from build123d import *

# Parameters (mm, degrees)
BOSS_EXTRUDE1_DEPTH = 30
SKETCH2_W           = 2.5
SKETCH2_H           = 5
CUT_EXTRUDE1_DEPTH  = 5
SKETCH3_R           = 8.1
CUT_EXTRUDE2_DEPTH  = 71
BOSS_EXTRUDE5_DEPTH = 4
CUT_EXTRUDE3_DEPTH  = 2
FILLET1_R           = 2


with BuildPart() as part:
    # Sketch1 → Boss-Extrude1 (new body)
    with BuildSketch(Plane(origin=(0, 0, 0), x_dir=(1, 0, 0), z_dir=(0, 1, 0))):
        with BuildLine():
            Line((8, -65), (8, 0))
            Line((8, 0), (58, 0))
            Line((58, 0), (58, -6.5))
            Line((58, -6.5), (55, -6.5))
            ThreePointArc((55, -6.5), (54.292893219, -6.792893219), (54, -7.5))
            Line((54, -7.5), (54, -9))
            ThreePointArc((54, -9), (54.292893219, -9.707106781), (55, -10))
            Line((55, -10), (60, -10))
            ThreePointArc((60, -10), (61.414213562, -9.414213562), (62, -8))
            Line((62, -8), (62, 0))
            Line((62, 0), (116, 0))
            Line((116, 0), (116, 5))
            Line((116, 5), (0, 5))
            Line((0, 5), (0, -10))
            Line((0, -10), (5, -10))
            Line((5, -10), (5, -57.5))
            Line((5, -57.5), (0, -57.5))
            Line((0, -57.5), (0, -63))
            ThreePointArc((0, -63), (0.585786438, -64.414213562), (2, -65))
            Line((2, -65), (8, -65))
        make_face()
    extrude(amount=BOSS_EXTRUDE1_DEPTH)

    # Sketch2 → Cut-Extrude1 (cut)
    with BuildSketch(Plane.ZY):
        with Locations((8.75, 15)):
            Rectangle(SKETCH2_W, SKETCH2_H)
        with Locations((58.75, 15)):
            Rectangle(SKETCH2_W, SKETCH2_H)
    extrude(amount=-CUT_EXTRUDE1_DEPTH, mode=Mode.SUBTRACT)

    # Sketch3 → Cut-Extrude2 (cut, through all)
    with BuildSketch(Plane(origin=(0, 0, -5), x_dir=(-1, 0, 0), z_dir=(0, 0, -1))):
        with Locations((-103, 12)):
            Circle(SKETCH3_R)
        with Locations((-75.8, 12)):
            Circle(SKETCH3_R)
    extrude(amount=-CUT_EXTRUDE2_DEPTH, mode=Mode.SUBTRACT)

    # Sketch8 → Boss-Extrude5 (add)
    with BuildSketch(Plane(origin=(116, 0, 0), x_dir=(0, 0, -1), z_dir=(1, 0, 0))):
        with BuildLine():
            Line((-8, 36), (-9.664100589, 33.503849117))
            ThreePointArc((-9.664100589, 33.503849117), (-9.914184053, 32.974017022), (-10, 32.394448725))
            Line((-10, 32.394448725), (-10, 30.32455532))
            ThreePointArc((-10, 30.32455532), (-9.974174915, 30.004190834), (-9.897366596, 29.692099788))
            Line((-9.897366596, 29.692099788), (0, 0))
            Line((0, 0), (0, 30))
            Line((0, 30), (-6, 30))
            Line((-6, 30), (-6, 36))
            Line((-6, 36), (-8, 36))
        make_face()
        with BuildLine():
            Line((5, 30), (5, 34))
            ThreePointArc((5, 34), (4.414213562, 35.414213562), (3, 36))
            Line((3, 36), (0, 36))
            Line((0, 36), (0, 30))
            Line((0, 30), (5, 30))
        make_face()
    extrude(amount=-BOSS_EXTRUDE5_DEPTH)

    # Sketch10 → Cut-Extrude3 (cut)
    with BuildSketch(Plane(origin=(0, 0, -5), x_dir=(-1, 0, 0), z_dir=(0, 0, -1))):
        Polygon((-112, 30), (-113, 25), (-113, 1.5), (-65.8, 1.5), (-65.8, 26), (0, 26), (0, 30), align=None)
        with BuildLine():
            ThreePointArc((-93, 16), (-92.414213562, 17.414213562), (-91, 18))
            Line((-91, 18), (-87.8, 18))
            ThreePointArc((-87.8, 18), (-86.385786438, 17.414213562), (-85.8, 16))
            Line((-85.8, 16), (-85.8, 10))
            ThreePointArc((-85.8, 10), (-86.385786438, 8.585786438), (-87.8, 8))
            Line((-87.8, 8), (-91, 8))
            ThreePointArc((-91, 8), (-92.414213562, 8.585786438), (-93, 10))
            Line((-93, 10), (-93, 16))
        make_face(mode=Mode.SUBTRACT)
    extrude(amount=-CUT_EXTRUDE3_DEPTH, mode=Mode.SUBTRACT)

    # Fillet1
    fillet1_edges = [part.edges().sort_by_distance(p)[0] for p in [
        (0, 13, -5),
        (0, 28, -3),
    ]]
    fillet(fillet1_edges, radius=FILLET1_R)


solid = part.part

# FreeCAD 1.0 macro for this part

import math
import FreeCAD as App
import Part
import Sketcher
from FreeCAD import Vector
Q = App.Units.Quantity


def edges_at(feature, points):
    """Names of the edges that pass closest to the given points."""
    edges = feature.Shape.Edges
    near = lambda p: min(range(len(edges)), key=lambda i: edges[i].distToShape(Part.Vertex(*p))[0])
    return sorted({f"Edge{near(p) + 1}" for p in points})


def add_polygon(sketch, points):
    """Adds a closed chain of lines whose ends are joined by coincident constraints."""
    first, n = sketch.GeometryCount, len(points)
    for a, b in zip(points, points[1:] + points[:1]):
        sketch.addGeometry(Part.LineSegment(App.Vector(*a, 0), App.Vector(*b, 0)), False)
    for i in range(n):
        sketch.addConstraint(Sketcher.Constraint("Coincident", first + i, 2, first + (i + 1) % n, 1))

doc = App.newDocument("Part")
params = doc.addObject("Spreadsheet::Sheet", "Params")
for row, (alias, value) in enumerate([
    ("sketch1_radius", "1 mm"),
    ("sketch1_radius2", "2 mm"),
    ("sketch1_width", "50 mm"),
    ("sketch1_width2", "3 mm"),
    ("sketch1_width3", "5 mm"),
    ("pad1_length", "30 mm"),
    ("sketch2_width", "5 mm"),
    ("sketch2_height", "2.5 mm"),
    ("pocket1_length", "5 mm"),
    ("sketch3_diameter", "16.2 mm"),
    ("sketch4_radius", "2 mm"),
    ("sketch4_width", "30 mm"),
    ("sketch4_width2", "6 mm"),
    ("sketch4_height", "2 mm"),
    ("sketch4_height2", "3 mm"),
    ("pad2_length", "4 mm"),
    ("sketch5_radius", "2 mm"),
    ("sketch5_width", "112 mm"),
    ("sketch5_height", "4 mm"),
    ("sketch5_height2", "6 mm"),
    ("sketch5_width2", "47.2 mm"),
    ("pocket3_length", "2 mm"),
    ("fillet_radius", "2 mm"),
], start=1):
    params.set(f"A{row}", alias)
    params.set(f"B{row}", "=" + value)
    params.setAlias(f"B{row}", alias)

body = doc.addObject("PartDesign::Body", "Body")

# Sketch on XZ plane
sketch1 = body.newObject("Sketcher::SketchObject", "Sketch")
sketch1.AttachmentSupport = (doc.getObject("XZ_Plane"), [""])
sketch1.MapMode = "FlatFace"
sketch1.addGeometry(Part.LineSegment(Vector(8, 65, 0), Vector(8, 0, 0)), False)
sketch1.addGeometry(Part.LineSegment(Vector(8, 0, 0), Vector(58, 0, 0)), False)
sketch1.addGeometry(Part.LineSegment(Vector(58, 0, 0), Vector(58, 6.5, 0)), False)
sketch1.addGeometry(Part.LineSegment(Vector(58, 6.5, 0), Vector(55, 6.5, 0)), False)
sketch1.addGeometry(Part.ArcOfCircle(Part.Circle(Vector(55, 7.5, 0), Vector(0, 0, 1), 1), math.radians(-180), math.radians(-90)), False)
sketch1.addGeometry(Part.LineSegment(Vector(54, 7.5, 0), Vector(54, 9, 0)), False)
sketch1.addGeometry(Part.ArcOfCircle(Part.Circle(Vector(55, 9, 0), Vector(0, 0, 1), 1), math.radians(90), math.radians(180)), False)
sketch1.addGeometry(Part.LineSegment(Vector(55, 10, 0), Vector(60, 10, 0)), False)
sketch1.addGeometry(Part.ArcOfCircle(Part.Circle(Vector(60, 8, 0), Vector(0, 0, 1), 2), math.radians(0), math.radians(90)), False)
sketch1.addGeometry(Part.LineSegment(Vector(62, 8, 0), Vector(62, 0, 0)), False)
sketch1.addGeometry(Part.LineSegment(Vector(62, 0, 0), Vector(116, 0, 0)), False)
sketch1.addGeometry(Part.LineSegment(Vector(116, 0, 0), Vector(116, -5, 0)), False)
sketch1.addGeometry(Part.LineSegment(Vector(116, -5, 0), Vector(0, -5, 0)), False)
sketch1.addGeometry(Part.LineSegment(Vector(0, -5, 0), Vector(0, 10, 0)), False)
sketch1.addGeometry(Part.LineSegment(Vector(0, 10, 0), Vector(5, 10, 0)), False)
sketch1.addGeometry(Part.LineSegment(Vector(5, 10, 0), Vector(5, 57.5, 0)), False)
sketch1.addGeometry(Part.LineSegment(Vector(5, 57.5, 0), Vector(0, 57.5, 0)), False)
sketch1.addGeometry(Part.LineSegment(Vector(0, 57.5, 0), Vector(0, 63, 0)), False)
sketch1.addGeometry(Part.ArcOfCircle(Part.Circle(Vector(2, 63, 0), Vector(0, 0, 1), 2), math.radians(90), math.radians(180)), False)
sketch1.addGeometry(Part.LineSegment(Vector(2, 65, 0), Vector(8, 65, 0)), False)
sketch1.addConstraint(Sketcher.Constraint("Coincident", 0, 2, 1, 1))
sketch1.addConstraint(Sketcher.Constraint("Coincident", 1, 2, 2, 1))
sketch1.addConstraint(Sketcher.Constraint("Coincident", 2, 2, 3, 1))
sketch1.addConstraint(Sketcher.Constraint("Tangent", 3, 2, 4, 2))
sketch1.addConstraint(Sketcher.Constraint("Tangent", 4, 1, 5, 1))
sketch1.addConstraint(Sketcher.Constraint("Tangent", 5, 2, 6, 2))
sketch1.addConstraint(Sketcher.Constraint("Tangent", 6, 1, 7, 1))
sketch1.addConstraint(Sketcher.Constraint("Tangent", 7, 2, 8, 2))
sketch1.addConstraint(Sketcher.Constraint("Tangent", 8, 1, 9, 1))
sketch1.addConstraint(Sketcher.Constraint("Coincident", 9, 2, 10, 1))
sketch1.addConstraint(Sketcher.Constraint("Coincident", 10, 2, 11, 1))
sketch1.addConstraint(Sketcher.Constraint("Coincident", 11, 2, 12, 1))
sketch1.addConstraint(Sketcher.Constraint("Coincident", 12, 2, 13, 1))
sketch1.addConstraint(Sketcher.Constraint("Coincident", 13, 2, 14, 1))
sketch1.addConstraint(Sketcher.Constraint("Coincident", 14, 2, 15, 1))
sketch1.addConstraint(Sketcher.Constraint("Coincident", 15, 2, 16, 1))
sketch1.addConstraint(Sketcher.Constraint("Coincident", 16, 2, 17, 1))
sketch1.addConstraint(Sketcher.Constraint("Tangent", 17, 2, 18, 2))
sketch1.addConstraint(Sketcher.Constraint("Tangent", 18, 1, 19, 1))
sketch1.addConstraint(Sketcher.Constraint("Coincident", 19, 2, 0, 1))
sketch1.addConstraint(Sketcher.Constraint("Vertical", 0))
sketch1.addConstraint(Sketcher.Constraint("Horizontal", 1))
sketch1.addConstraint(Sketcher.Constraint("Vertical", 2))
sketch1.addConstraint(Sketcher.Constraint("Horizontal", 3))
sketch1.addConstraint(Sketcher.Constraint("Vertical", 5))
sketch1.addConstraint(Sketcher.Constraint("Horizontal", 7))
sketch1.addConstraint(Sketcher.Constraint("Vertical", 9))
sketch1.addConstraint(Sketcher.Constraint("Horizontal", 10))
sketch1.addConstraint(Sketcher.Constraint("Vertical", 11))
sketch1.addConstraint(Sketcher.Constraint("Horizontal", 12))
sketch1.addConstraint(Sketcher.Constraint("Vertical", 13))
sketch1.addConstraint(Sketcher.Constraint("Horizontal", 14))
sketch1.addConstraint(Sketcher.Constraint("Vertical", 15))
sketch1.addConstraint(Sketcher.Constraint("Horizontal", 16))
sketch1.addConstraint(Sketcher.Constraint("Vertical", 17))
sketch1.addConstraint(Sketcher.Constraint("Horizontal", 19))
sketch1.addConstraint(Sketcher.Constraint("Equal", 4, 6))
sketch1.addConstraint(Sketcher.Constraint("Equal", 8, 18))
sketch1.addConstraint(Sketcher.Constraint("PointOnObject", 0, 2, -1))
sketch1.addConstraint(Sketcher.Constraint("PointOnObject", 9, 2, -1))
sketch1.addConstraint(Sketcher.Constraint("PointOnObject", 12, 2, -2))
sketch1.addConstraint(Sketcher.Constraint("PointOnObject", 16, 2, -2))
sketch1.addConstraint(Sketcher.Constraint("Horizontal", 7, 2, 13, 2))
sketch1.addConstraint(Sketcher.Constraint("Equal", 7, 14))
sketch1.addConstraint(Sketcher.Constraint("Equal", 16, 11))
sketch1.addConstraint(Sketcher.Constraint("Radius", 4, Q("1 mm")))
sketch1.addConstraint(Sketcher.Constraint("Radius", 8, Q("2 mm")))
sketch1.addConstraint(Sketcher.Constraint("DistanceX", 1, 1, 1, 2, Q("50 mm")))
sketch1.addConstraint(Sketcher.Constraint("DistanceX", 3, 2, 3, 1, Q("3 mm")))
sketch1.addConstraint(Sketcher.Constraint("DistanceX", 7, 1, 7, 2, Q("5 mm")))
sketch1.addConstraint(Sketcher.Constraint("DistanceX", 10, 1, 10, 2, Q("54 mm")))
sketch1.addConstraint(Sketcher.Constraint("DistanceX", 12, 2, 12, 1, Q("116 mm")))
sketch1.addConstraint(Sketcher.Constraint("DistanceY", 0, 2, 0, 1, Q("65 mm")))
sketch1.addConstraint(Sketcher.Constraint("DistanceY", 9, 2, 9, 1, Q("8 mm")))
sketch1.addConstraint(Sketcher.Constraint("DistanceY", 2, 1, 2, 2, Q("6.5 mm")))
sketch1.addConstraint(Sketcher.Constraint("DistanceY", 15, 1, 15, 2, Q("47.5 mm")))
sketch1.setExpression("Constraints[45]", "Params.sketch1_radius")
sketch1.setExpression("Constraints[46]", "Params.sketch1_radius2")
sketch1.setExpression("Constraints[47]", "Params.sketch1_width")
sketch1.setExpression("Constraints[48]", "Params.sketch1_width2")
sketch1.setExpression("Constraints[49]", "Params.sketch1_width3")
pad1 = body.newObject("PartDesign::Pad", "Pad")
pad1.Profile = sketch1
pad1.setExpression("Length", "Params.pad1_length")
pad1.Reversed = True

# Sketch on YZ plane
sketch2 = body.newObject("Sketcher::SketchObject", "Sketch001")
sketch2.AttachmentSupport = (doc.getObject("YZ_Plane"), [""])
sketch2.MapMode = "FlatFace"
add_polygon(sketch2, [(17.5, 7.5), (12.5, 7.5), (12.5, 10), (17.5, 10)])  # lines 0-3
add_polygon(sketch2, [(17.5, 57.5), (12.5, 57.5), (12.5, 60), (17.5, 60)])  # lines 4-7
sketch2.addConstraint(Sketcher.Constraint("Horizontal", 0))
sketch2.addConstraint(Sketcher.Constraint("Vertical", 1))
sketch2.addConstraint(Sketcher.Constraint("Horizontal", 2))
sketch2.addConstraint(Sketcher.Constraint("Vertical", 3))
sketch2.addConstraint(Sketcher.Constraint("Horizontal", 4))
sketch2.addConstraint(Sketcher.Constraint("Vertical", 5))
sketch2.addConstraint(Sketcher.Constraint("Horizontal", 6))
sketch2.addConstraint(Sketcher.Constraint("Vertical", 7))
sketch2.addConstraint(Sketcher.Constraint("Vertical", 1, 2, 4, 2))
sketch2.addConstraint(Sketcher.Constraint("Vertical", 3, 2, 6, 2))
sketch2.addConstraint(Sketcher.Constraint("Equal", 3, 5))
sketch2.addConstraint(Sketcher.Constraint("DistanceX", 0, 2, 0, 1, Q("5 mm")))
sketch2.addConstraint(Sketcher.Constraint("DistanceY", 1, 1, 1, 2, Q("2.5 mm")))
sketch2.addConstraint(Sketcher.Constraint("DistanceY", -1, 1, 1, 2, Q("10 mm")))
sketch2.addConstraint(Sketcher.Constraint("DistanceY", -1, 1, 5, 2, Q("60 mm")))
sketch2.addConstraint(Sketcher.Constraint("DistanceX", -1, 1, 0, 2, Q("12.5 mm")))
sketch2.setExpression("Constraints[19]", "Params.sketch2_width")
sketch2.setExpression("Constraints[20]", "Params.sketch2_height")
pocket1 = body.newObject("PartDesign::Pocket", "Pocket")
pocket1.Profile = sketch2
pocket1.setExpression("Length", "Params.pocket1_length")
pocket1.Reversed = True

# Sketch on XY plane
sketch3 = body.newObject("Sketcher::SketchObject", "Sketch002")
sketch3.AttachmentSupport = (doc.getObject("XY_Plane"), [""])
sketch3.MapMode = "FlatFace"
sketch3.AttachmentOffset = App.Placement(Vector(0, 0, -5), App.Rotation())
sketch3.addGeometry(Part.Circle(Vector(103, 12, 0), Vector(0, 0, 1), 8), False)
sketch3.addGeometry(Part.Circle(Vector(76, 12, 0), Vector(0, 0, 1), 8), False)
sketch3.addConstraint(Sketcher.Constraint("Equal", 0, 1))
sketch3.addConstraint(Sketcher.Constraint("Horizontal", 0, 3, 1, 3))
sketch3.addConstraint(Sketcher.Constraint("Diameter", 0, Q("16.2 mm")))
sketch3.addConstraint(Sketcher.Constraint("DistanceX", -1, 1, 0, 3, Q("103 mm")))
sketch3.addConstraint(Sketcher.Constraint("DistanceY", -1, 1, 0, 3, Q("12 mm")))
sketch3.addConstraint(Sketcher.Constraint("DistanceX", -1, 1, 1, 3, Q("75.8 mm")))
sketch3.setExpression("Constraints[2]", "Params.sketch3_diameter")
pocket2 = body.newObject("PartDesign::Pocket", "Pocket001")
pocket2.Profile = sketch3
pocket2.Type = "ThroughAll"
pocket2.Reversed = True

# Sketch on YZ plane
sketch4 = body.newObject("Sketcher::SketchObject", "Sketch003")
sketch4.AttachmentSupport = (doc.getObject("YZ_Plane"), [""])
sketch4.MapMode = "FlatFace"
sketch4.AttachmentOffset = App.Placement(Vector(0, 0, 116), App.Rotation())
sketch4.addGeometry(Part.LineSegment(Vector(36, 8, 0), Vector(33.5, 9.7, 0)), False)
sketch4.addGeometry(Part.ArcOfCircle(Part.Circle(Vector(32.4, 8, 0), Vector(0, 0, 1), 2), math.radians(56), math.radians(90)), False)
sketch4.addGeometry(Part.LineSegment(Vector(32.4, 10, 0), Vector(30.3, 10, 0)), False)
sketch4.addGeometry(Part.ArcOfCircle(Part.Circle(Vector(30.3, 8, 0), Vector(0, 0, 1), 2), math.radians(90), math.radians(108.43)), False)
sketch4.addGeometry(Part.LineSegment(Vector(29.7, 9.9, 0), Vector(0, 0, 0)), False)
sketch4.addGeometry(Part.LineSegment(Vector(0, 0, 0), Vector(30, 0, 0)), False)
sketch4.addGeometry(Part.LineSegment(Vector(30, 0, 0), Vector(30, 6, 0)), False)
sketch4.addGeometry(Part.LineSegment(Vector(30, 6, 0), Vector(36, 6, 0)), False)
sketch4.addGeometry(Part.LineSegment(Vector(36, 6, 0), Vector(36, 8, 0)), False)
sketch4.addGeometry(Part.LineSegment(Vector(30, -5, 0), Vector(34, -5, 0)), False)
sketch4.addGeometry(Part.ArcOfCircle(Part.Circle(Vector(34, -3, 0), Vector(0, 0, 1), 2), math.radians(-90), math.radians(0)), False)
sketch4.addGeometry(Part.LineSegment(Vector(36, -3, 0), Vector(36, 0, 0)), False)
sketch4.addGeometry(Part.LineSegment(Vector(36, 0, 0), Vector(30, 0, 0)), False)
sketch4.addGeometry(Part.LineSegment(Vector(30, 0, 0), Vector(30, -5, 0)), False)
sketch4.addConstraint(Sketcher.Constraint("Tangent", 0, 2, 1, 1))
sketch4.addConstraint(Sketcher.Constraint("Tangent", 1, 2, 2, 1))
sketch4.addConstraint(Sketcher.Constraint("Tangent", 2, 2, 3, 1))
sketch4.addConstraint(Sketcher.Constraint("Tangent", 3, 2, 4, 1))
sketch4.addConstraint(Sketcher.Constraint("Coincident", 4, 2, 5, 1))
sketch4.addConstraint(Sketcher.Constraint("Coincident", 5, 2, 6, 1))
sketch4.addConstraint(Sketcher.Constraint("Coincident", 6, 2, 7, 1))
sketch4.addConstraint(Sketcher.Constraint("Coincident", 7, 2, 8, 1))
sketch4.addConstraint(Sketcher.Constraint("Coincident", 8, 2, 0, 1))
sketch4.addConstraint(Sketcher.Constraint("Tangent", 9, 2, 10, 1))
sketch4.addConstraint(Sketcher.Constraint("Tangent", 10, 2, 11, 1))
sketch4.addConstraint(Sketcher.Constraint("Coincident", 11, 2, 12, 1))
sketch4.addConstraint(Sketcher.Constraint("Coincident", 12, 2, 13, 1))
sketch4.addConstraint(Sketcher.Constraint("Coincident", 13, 2, 9, 1))
sketch4.addConstraint(Sketcher.Constraint("Horizontal", 2))
sketch4.addConstraint(Sketcher.Constraint("Horizontal", 5))
sketch4.addConstraint(Sketcher.Constraint("Vertical", 6))
sketch4.addConstraint(Sketcher.Constraint("Horizontal", 7))
sketch4.addConstraint(Sketcher.Constraint("Vertical", 8))
sketch4.addConstraint(Sketcher.Constraint("Horizontal", 9))
sketch4.addConstraint(Sketcher.Constraint("Vertical", 11))
sketch4.addConstraint(Sketcher.Constraint("Horizontal", 12))
sketch4.addConstraint(Sketcher.Constraint("Vertical", 13))
sketch4.addConstraint(Sketcher.Constraint("Coincident", 4, 2, -1, 1))
sketch4.addConstraint(Sketcher.Constraint("Coincident", 12, 2, 5, 2))
sketch4.addConstraint(Sketcher.Constraint("Equal", 1, 3))
sketch4.addConstraint(Sketcher.Constraint("Equal", 3, 10))
sketch4.addConstraint(Sketcher.Constraint("Horizontal", 3, 3, 8, 2))
sketch4.addConstraint(Sketcher.Constraint("Vertical", 8, 2, 10, 2))
sketch4.addConstraint(Sketcher.Constraint("Equal", 12, 6))
sketch4.addConstraint(Sketcher.Constraint("Radius", 1, Q("2 mm")))
sketch4.addConstraint(Sketcher.Constraint("DistanceX", 5, 1, 5, 2, Q("30 mm")))
sketch4.addConstraint(Sketcher.Constraint("DistanceX", 7, 1, 7, 2, Q("6 mm")))
sketch4.addConstraint(Sketcher.Constraint("DistanceY", 8, 1, 8, 2, Q("2 mm")))
sketch4.addConstraint(Sketcher.Constraint("DistanceY", 11, 1, 11, 2, Q("3 mm")))
sketch4.addConstraint(Sketcher.Constraint("Distance", 0, Q("3 mm")))
sketch4.addConstraint(Sketcher.Constraint("DistanceX", -1, 1, 3, 2, Q("29.6921 mm")))
sketch4.setExpression("Constraints[30]", "Params.sketch4_radius")
sketch4.setExpression("Constraints[31]", "Params.sketch4_width")
sketch4.setExpression("Constraints[32]", "Params.sketch4_width2")
sketch4.setExpression("Constraints[33]", "Params.sketch4_height")
sketch4.setExpression("Constraints[34]", "Params.sketch4_height2")
pad2 = body.newObject("PartDesign::Pad", "Pad001")
pad2.Profile = sketch4
pad2.setExpression("Length", "Params.pad2_length")
pad2.Reversed = True

# Sketch on XY plane
sketch5 = body.newObject("Sketcher::SketchObject", "Sketch004")
sketch5.AttachmentSupport = (doc.getObject("XY_Plane"), [""])
sketch5.MapMode = "FlatFace"
sketch5.AttachmentOffset = App.Placement(Vector(0, 0, -5), App.Rotation())
add_polygon(sketch5, [(112, 30), (113, 25), (113, 1.5), (65.8, 1.5), (65.8, 26), (0, 26), (0, 30)])  # lines 0-6
sketch5.addGeometry(Part.LineSegment(Vector(93, 10, 0), Vector(93, 16, 0)), False)  # 7
sketch5.addGeometry(Part.ArcOfCircle(Part.Circle(Vector(91, 16, 0), Vector(0, 0, 1), 2), math.radians(0), math.radians(90)), False)  # 8
sketch5.addGeometry(Part.LineSegment(Vector(91, 18, 0), Vector(87.8, 18, 0)), False)  # 9
sketch5.addGeometry(Part.ArcOfCircle(Part.Circle(Vector(87.8, 16, 0), Vector(0, 0, 1), 2), math.radians(90), math.radians(180)), False)  # 10
sketch5.addGeometry(Part.LineSegment(Vector(85.8, 16, 0), Vector(85.8, 10, 0)), False)  # 11
sketch5.addGeometry(Part.ArcOfCircle(Part.Circle(Vector(87.8, 10, 0), Vector(0, 0, 1), 2), math.radians(-180), math.radians(-90)), False)  # 12
sketch5.addGeometry(Part.LineSegment(Vector(87.8, 8, 0), Vector(91, 8, 0)), False)  # 13
sketch5.addGeometry(Part.ArcOfCircle(Part.Circle(Vector(91, 10, 0), Vector(0, 0, 1), 2), math.radians(-90), math.radians(0)), False)  # 14
sketch5.addConstraint(Sketcher.Constraint("Tangent", 7, 2, 8, 1))
sketch5.addConstraint(Sketcher.Constraint("Tangent", 8, 2, 9, 1))
sketch5.addConstraint(Sketcher.Constraint("Tangent", 9, 2, 10, 1))
sketch5.addConstraint(Sketcher.Constraint("Tangent", 10, 2, 11, 1))
sketch5.addConstraint(Sketcher.Constraint("Tangent", 11, 2, 12, 1))
sketch5.addConstraint(Sketcher.Constraint("Tangent", 12, 2, 13, 1))
sketch5.addConstraint(Sketcher.Constraint("Tangent", 13, 2, 14, 1))
sketch5.addConstraint(Sketcher.Constraint("Tangent", 14, 2, 7, 1))
sketch5.addConstraint(Sketcher.Constraint("Vertical", 1))
sketch5.addConstraint(Sketcher.Constraint("Horizontal", 2))
sketch5.addConstraint(Sketcher.Constraint("Vertical", 3))
sketch5.addConstraint(Sketcher.Constraint("Horizontal", 4))
sketch5.addConstraint(Sketcher.Constraint("Vertical", 5))
sketch5.addConstraint(Sketcher.Constraint("Horizontal", 6))
sketch5.addConstraint(Sketcher.Constraint("Vertical", 7))
sketch5.addConstraint(Sketcher.Constraint("Horizontal", 9))
sketch5.addConstraint(Sketcher.Constraint("Vertical", 11))
sketch5.addConstraint(Sketcher.Constraint("Horizontal", 13))
sketch5.addConstraint(Sketcher.Constraint("Equal", 8, 10))
sketch5.addConstraint(Sketcher.Constraint("Equal", 10, 12))
sketch5.addConstraint(Sketcher.Constraint("Equal", 12, 14))
sketch5.addConstraint(Sketcher.Constraint("PointOnObject", 4, 2, -2))
sketch5.addConstraint(Sketcher.Constraint("Radius", 8, Q("2 mm")))
sketch5.addConstraint(Sketcher.Constraint("DistanceX", 6, 1, 6, 2, Q("112 mm")))
sketch5.addConstraint(Sketcher.Constraint("DistanceY", 5, 1, 5, 2, Q("4 mm")))
sketch5.addConstraint(Sketcher.Constraint("DistanceY", 7, 1, 7, 2, Q("6 mm")))
sketch5.addConstraint(Sketcher.Constraint("DistanceX", 2, 2, 2, 1, Q("47.2 mm")))
sketch5.addConstraint(Sketcher.Constraint("DistanceX", 4, 2, 4, 1, Q("65.8 mm")))
sketch5.addConstraint(Sketcher.Constraint("DistanceX", 9, 2, 9, 1, Q("3.2 mm")))
sketch5.addConstraint(Sketcher.Constraint("DistanceY", 1, 2, 1, 1, Q("23.5 mm")))
sketch5.addConstraint(Sketcher.Constraint("DistanceY", 3, 1, 3, 2, Q("24.5 mm")))
sketch5.addConstraint(Sketcher.Constraint("DistanceX", -1, 1, 8, 3, Q("91 mm")))
sketch5.addConstraint(Sketcher.Constraint("DistanceY", -1, 1, 8, 3, Q("16 mm")))
sketch5.addConstraint(Sketcher.Constraint("DistanceY", -1, 1, 0, 2, Q("25 mm")))
sketch5.setExpression("Constraints[29]", "Params.sketch5_radius")
sketch5.setExpression("Constraints[30]", "Params.sketch5_width")
sketch5.setExpression("Constraints[31]", "Params.sketch5_height")
sketch5.setExpression("Constraints[32]", "Params.sketch5_height2")
sketch5.setExpression("Constraints[33]", "Params.sketch5_width2")
pocket3 = body.newObject("PartDesign::Pocket", "Pocket002")
pocket3.Profile = sketch5
pocket3.setExpression("Length", "Params.pocket3_length")
pocket3.Reversed = True
doc.recompute()

fillet = body.newObject("PartDesign::Fillet", "Fillet")
fillet.Base = (pocket3, edges_at(pocket3, [(0, 13, -5), (0, 28, -3)]))
fillet.setExpression("Radius", "Params.fillet_radius")

doc.recompute()
